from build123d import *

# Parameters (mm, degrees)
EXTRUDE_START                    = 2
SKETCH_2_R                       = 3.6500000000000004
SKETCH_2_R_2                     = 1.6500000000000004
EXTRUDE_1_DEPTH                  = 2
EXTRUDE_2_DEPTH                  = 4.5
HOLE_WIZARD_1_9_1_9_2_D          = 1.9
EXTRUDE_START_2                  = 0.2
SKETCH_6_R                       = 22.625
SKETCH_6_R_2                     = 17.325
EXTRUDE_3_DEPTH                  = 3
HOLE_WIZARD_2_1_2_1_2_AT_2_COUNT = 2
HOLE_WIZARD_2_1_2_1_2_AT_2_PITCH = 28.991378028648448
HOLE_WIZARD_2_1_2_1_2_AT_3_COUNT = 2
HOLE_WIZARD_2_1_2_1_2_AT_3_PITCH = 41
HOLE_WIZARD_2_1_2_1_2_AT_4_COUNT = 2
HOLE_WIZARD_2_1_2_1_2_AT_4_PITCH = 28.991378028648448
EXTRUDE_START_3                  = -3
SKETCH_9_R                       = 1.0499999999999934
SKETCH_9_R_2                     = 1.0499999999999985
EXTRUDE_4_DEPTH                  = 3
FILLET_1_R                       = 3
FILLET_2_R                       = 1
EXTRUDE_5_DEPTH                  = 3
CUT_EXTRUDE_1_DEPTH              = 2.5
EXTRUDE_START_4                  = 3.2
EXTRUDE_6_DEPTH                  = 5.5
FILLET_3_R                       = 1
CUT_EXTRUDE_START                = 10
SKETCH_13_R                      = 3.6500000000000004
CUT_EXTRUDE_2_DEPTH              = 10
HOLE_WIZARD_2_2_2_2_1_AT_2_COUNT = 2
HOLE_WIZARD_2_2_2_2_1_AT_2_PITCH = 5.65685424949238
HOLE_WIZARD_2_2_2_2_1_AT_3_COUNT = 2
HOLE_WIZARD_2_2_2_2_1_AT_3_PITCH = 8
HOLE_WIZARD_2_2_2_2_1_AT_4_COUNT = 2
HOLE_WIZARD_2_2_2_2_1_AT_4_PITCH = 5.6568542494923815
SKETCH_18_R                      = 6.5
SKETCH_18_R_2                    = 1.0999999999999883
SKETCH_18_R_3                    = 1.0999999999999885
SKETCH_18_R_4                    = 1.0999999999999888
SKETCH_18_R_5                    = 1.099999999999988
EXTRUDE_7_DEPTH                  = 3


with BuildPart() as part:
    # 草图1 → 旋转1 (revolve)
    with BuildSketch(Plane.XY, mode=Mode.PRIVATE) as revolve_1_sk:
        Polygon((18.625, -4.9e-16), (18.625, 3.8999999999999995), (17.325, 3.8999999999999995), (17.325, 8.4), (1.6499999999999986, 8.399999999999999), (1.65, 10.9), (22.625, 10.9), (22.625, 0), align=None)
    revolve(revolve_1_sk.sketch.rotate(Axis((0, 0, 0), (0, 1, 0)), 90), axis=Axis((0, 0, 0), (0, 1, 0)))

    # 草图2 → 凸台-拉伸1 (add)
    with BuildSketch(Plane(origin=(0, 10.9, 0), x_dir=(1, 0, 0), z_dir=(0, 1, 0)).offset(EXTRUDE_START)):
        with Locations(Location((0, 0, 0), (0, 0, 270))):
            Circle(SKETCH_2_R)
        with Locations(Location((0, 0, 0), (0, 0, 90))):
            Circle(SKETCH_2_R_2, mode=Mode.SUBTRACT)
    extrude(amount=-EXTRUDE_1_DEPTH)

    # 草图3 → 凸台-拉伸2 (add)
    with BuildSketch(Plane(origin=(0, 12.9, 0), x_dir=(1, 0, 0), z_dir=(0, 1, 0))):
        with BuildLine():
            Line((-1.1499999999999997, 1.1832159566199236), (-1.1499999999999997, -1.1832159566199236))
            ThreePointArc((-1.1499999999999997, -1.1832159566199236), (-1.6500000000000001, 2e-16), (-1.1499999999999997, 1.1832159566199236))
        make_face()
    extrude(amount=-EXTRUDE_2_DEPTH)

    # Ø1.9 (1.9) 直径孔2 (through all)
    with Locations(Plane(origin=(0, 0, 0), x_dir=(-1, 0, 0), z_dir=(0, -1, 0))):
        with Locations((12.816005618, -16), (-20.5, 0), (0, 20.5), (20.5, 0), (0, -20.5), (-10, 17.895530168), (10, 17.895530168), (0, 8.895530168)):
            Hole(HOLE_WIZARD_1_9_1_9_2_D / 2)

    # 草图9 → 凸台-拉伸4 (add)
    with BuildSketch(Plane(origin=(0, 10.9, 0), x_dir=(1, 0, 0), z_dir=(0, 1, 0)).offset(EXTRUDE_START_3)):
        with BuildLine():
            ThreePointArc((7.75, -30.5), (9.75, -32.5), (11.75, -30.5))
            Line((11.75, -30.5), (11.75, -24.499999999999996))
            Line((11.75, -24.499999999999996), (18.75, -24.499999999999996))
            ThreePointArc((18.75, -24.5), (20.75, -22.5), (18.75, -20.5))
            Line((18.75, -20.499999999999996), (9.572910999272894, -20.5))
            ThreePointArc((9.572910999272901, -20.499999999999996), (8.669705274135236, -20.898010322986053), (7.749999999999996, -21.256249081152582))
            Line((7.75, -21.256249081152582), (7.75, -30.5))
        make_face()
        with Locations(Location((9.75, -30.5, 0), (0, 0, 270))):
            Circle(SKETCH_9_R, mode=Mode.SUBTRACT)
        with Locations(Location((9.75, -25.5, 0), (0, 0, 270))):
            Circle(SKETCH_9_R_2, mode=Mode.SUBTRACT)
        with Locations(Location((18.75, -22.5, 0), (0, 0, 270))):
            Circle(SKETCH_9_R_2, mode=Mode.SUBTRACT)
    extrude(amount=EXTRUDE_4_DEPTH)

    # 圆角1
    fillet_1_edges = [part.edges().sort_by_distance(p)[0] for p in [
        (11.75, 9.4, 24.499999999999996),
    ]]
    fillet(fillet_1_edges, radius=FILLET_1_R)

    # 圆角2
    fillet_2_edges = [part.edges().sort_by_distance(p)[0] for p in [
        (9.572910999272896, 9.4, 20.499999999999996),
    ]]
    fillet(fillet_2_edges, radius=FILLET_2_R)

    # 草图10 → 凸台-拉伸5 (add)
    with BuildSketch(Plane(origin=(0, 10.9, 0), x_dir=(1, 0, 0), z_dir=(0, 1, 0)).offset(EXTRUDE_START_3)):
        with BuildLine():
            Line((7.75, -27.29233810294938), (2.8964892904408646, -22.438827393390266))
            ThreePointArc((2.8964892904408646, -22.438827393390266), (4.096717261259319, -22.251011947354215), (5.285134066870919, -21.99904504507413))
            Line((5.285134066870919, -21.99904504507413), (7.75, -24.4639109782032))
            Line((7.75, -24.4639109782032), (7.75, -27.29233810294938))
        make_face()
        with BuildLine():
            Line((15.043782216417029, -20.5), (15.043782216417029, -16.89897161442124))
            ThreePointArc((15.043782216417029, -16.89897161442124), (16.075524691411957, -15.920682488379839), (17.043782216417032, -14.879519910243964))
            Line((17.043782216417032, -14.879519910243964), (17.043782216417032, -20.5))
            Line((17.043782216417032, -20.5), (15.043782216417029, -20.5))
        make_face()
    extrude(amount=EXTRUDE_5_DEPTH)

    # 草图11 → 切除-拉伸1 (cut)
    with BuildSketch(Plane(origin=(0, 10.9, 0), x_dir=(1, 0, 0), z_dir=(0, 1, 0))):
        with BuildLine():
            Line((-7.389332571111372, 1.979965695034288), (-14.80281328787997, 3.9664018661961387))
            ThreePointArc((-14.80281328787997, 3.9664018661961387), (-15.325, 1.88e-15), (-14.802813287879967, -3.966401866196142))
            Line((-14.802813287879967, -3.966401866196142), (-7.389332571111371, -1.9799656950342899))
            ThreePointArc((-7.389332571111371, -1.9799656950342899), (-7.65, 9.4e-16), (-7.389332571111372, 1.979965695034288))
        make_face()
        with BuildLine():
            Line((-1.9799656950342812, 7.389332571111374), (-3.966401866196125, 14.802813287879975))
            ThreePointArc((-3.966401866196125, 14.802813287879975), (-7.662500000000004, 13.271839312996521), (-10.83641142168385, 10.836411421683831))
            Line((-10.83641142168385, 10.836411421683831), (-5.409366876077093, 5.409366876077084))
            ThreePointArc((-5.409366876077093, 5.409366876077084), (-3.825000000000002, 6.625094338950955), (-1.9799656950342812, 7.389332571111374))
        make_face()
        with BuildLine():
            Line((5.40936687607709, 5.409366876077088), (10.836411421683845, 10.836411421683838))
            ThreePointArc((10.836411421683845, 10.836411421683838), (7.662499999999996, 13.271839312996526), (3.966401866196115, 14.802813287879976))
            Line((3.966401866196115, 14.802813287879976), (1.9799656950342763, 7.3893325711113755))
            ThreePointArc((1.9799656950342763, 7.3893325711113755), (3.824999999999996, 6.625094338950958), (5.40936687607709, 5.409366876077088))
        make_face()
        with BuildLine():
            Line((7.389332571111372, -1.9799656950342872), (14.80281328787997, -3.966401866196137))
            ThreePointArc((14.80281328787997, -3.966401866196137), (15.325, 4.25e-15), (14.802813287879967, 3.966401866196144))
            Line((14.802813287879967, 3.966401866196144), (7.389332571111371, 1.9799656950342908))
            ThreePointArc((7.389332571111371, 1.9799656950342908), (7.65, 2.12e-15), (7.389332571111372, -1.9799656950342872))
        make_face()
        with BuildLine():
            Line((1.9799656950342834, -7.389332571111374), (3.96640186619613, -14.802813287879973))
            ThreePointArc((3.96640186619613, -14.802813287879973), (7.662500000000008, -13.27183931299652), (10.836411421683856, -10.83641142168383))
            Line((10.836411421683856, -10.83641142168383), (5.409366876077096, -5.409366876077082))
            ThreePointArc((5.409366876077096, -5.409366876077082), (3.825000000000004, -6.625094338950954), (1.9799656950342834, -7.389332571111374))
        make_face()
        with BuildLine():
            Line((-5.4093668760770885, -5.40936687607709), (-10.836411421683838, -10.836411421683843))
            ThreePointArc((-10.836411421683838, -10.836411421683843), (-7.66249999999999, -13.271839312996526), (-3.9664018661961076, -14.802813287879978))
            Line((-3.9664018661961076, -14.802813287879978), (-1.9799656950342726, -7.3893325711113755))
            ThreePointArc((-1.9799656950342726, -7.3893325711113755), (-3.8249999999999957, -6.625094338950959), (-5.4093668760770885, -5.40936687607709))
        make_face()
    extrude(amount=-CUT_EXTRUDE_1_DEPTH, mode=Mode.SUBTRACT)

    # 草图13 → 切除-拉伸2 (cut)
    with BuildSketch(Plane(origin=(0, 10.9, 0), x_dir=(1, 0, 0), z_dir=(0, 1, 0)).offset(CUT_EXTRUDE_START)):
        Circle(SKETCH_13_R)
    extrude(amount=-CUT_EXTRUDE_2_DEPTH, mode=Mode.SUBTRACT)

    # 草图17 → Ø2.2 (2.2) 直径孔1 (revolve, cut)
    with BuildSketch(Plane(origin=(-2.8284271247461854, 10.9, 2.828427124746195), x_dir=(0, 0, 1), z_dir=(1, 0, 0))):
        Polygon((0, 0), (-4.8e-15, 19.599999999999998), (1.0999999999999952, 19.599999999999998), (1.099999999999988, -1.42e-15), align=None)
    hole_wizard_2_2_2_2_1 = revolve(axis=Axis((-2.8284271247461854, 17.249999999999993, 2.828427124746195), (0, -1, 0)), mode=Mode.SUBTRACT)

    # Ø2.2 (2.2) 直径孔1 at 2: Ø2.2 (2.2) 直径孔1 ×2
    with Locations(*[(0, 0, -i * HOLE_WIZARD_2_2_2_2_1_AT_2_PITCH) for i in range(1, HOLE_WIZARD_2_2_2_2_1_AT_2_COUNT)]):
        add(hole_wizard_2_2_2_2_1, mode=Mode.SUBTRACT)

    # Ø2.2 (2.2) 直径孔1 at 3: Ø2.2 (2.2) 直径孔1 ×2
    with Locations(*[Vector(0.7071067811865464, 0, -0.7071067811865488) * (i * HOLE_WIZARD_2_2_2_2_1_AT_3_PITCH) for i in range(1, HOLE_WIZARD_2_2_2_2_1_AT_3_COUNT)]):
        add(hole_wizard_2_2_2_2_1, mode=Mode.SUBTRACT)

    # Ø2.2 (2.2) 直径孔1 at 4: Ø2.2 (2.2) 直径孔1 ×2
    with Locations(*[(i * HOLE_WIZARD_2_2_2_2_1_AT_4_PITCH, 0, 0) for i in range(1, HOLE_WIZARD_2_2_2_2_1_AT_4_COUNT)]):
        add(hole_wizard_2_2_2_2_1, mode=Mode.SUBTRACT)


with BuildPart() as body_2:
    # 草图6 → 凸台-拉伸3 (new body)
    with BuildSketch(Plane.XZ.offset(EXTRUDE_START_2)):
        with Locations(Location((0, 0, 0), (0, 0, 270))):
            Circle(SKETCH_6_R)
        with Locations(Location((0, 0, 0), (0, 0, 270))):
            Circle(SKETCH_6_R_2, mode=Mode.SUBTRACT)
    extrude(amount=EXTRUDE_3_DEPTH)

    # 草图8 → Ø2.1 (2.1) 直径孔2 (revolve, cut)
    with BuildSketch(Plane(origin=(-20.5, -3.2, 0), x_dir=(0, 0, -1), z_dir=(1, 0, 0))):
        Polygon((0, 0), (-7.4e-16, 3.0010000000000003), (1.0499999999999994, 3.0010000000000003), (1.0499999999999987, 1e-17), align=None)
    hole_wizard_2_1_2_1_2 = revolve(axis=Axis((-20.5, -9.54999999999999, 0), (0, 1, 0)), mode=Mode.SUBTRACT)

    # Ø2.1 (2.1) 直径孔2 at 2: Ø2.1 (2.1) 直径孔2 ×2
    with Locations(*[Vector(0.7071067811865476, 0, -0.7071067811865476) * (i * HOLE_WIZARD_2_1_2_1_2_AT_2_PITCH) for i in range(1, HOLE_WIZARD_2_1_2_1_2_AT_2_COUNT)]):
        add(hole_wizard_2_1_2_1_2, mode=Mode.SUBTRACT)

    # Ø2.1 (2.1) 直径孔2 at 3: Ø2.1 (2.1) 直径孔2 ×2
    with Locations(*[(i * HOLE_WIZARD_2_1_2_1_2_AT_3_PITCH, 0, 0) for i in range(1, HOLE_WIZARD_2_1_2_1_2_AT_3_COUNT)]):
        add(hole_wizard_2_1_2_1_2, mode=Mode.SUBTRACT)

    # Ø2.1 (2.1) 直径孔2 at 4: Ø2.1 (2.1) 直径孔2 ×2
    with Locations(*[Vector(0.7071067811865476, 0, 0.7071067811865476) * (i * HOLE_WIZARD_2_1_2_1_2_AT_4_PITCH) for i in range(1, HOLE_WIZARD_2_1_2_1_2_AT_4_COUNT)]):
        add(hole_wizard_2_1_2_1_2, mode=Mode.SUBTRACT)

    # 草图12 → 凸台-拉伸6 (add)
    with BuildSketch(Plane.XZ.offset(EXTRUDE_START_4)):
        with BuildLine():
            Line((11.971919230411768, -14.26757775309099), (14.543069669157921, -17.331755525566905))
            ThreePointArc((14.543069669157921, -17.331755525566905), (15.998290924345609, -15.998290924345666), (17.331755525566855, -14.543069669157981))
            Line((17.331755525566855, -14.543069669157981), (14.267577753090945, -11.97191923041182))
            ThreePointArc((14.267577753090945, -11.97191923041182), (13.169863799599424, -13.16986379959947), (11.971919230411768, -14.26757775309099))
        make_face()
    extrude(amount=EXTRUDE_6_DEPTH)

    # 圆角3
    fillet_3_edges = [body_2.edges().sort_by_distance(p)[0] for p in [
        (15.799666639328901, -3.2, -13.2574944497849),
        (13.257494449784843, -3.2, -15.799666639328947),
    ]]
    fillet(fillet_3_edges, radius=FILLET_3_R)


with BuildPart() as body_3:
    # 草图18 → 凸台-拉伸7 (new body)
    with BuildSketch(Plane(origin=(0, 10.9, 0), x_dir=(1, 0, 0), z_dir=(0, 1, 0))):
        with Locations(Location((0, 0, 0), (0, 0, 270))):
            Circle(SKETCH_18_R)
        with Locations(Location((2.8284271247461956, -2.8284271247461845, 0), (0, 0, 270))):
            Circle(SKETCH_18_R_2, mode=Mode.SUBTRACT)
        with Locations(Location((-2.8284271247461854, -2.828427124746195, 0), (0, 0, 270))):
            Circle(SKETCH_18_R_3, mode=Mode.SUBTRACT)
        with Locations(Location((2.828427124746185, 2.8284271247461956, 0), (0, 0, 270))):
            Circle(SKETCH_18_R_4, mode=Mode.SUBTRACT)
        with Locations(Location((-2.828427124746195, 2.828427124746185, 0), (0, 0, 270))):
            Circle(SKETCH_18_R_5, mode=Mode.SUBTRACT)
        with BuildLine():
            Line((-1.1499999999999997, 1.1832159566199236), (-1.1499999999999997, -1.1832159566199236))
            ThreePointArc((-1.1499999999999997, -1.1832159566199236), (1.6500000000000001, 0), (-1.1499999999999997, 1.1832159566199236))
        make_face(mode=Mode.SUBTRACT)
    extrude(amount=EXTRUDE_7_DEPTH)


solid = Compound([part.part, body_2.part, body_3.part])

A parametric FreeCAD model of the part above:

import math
import FreeCAD as App
import Part
import Sketcher
Q = App.Units.Quantity


def edges_at(feature, points):
    """Names of the edges that pass closest to the given points."""
    edges = feature.Shape.Edges
    near = lambda p: min(range(len(edges)), key=lambda i: edges[i].distToShape(Part.Vertex(*p))[0])
    return sorted({f"Edge{near(p) + 1}" for p in points})

doc = App.newDocument("Part")
body = doc.addObject("PartDesign::Body", "Body")

# Sketch on XY plane
sketch1 = body.newObject("Sketcher::SketchObject", "Sketch")
sketch1.AttachmentSupport = (doc.getObject("XY_Plane"), [""])
sketch1.MapMode = "FlatFace"
sketch1.addGeometry([
    Part.LineSegment(App.Vector(18.6, 3.9, 0), App.Vector(18.6, 0, 0)),  # 0
    Part.LineSegment(App.Vector(18.6, 0, 0), App.Vector(22.6, 0, 0)),  # 1
    Part.LineSegment(App.Vector(22.6, 0, 0), App.Vector(22.6, 10.9, 0)),  # 2
    Part.LineSegment(App.Vector(22.6, 10.9, 0), App.Vector(1.6, 10.9, 0)),  # 3
    Part.LineSegment(App.Vector(1.6, 10.9, 0), App.Vector(1.6, 8.4, 0)),  # 4
    Part.LineSegment(App.Vector(1.6, 8.4, 0), App.Vector(17.3, 8.4, 0)),  # 5
    Part.LineSegment(App.Vector(17.3, 8.4, 0), App.Vector(17.3, 3.9, 0)),  # 6
    Part.LineSegment(App.Vector(17.3, 3.9, 0), App.Vector(18.6, 3.9, 0)),  # 7
], False)
sketch1.addConstraint([
    Sketcher.Constraint("Coincident", 0, 2, 1, 1),
    Sketcher.Constraint("Coincident", 1, 2, 2, 1),
    Sketcher.Constraint("Coincident", 2, 2, 3, 1),
    Sketcher.Constraint("Coincident", 3, 2, 4, 1),
    Sketcher.Constraint("Coincident", 4, 2, 5, 1),
    Sketcher.Constraint("Coincident", 5, 2, 6, 1),
    Sketcher.Constraint("Coincident", 6, 2, 7, 1),
    Sketcher.Constraint("Coincident", 7, 2, 0, 1),
    Sketcher.Constraint("Vertical", 0),
    Sketcher.Constraint("Horizontal", 1),
    Sketcher.Constraint("Vertical", 2),
    Sketcher.Constraint("Horizontal", 3),
    Sketcher.Constraint("Vertical", 4),
    Sketcher.Constraint("Horizontal", 5),
    Sketcher.Constraint("Vertical", 6),
    Sketcher.Constraint("Horizontal", 7),
    Sketcher.Constraint("PointOnObject", 0, 2, -1),
    Sketcher.Constraint("DistanceX", 1, 1, 1, 2, Q("4 mm")),
    Sketcher.Constraint("DistanceX", 7, 1, 7, 2, Q("1.3 mm")),
    Sketcher.Constraint("DistanceY", 0, 2, 0, 1, Q("3.9 mm")),
    Sketcher.Constraint("DistanceY", 2, 1, 2, 2, Q("10.9 mm")),
    Sketcher.Constraint("DistanceY", 4, 2, 4, 1, Q("2.5 mm")),
    Sketcher.Constraint("DistanceX", 3, 2, 3, 1, Q("20.975 mm")),
    Sketcher.Constraint("DistanceX", -1, 1, 3, 2, Q("1.65 mm")),
])
revolution = body.newObject("PartDesign::Revolution", "Revolution")
revolution.Profile = sketch1
revolution.ReferenceAxis = (sketch1, ["V_Axis"])
revolution.Angle = 360

# Sketch on XZ plane
sketch2 = body.newObject("Sketcher::SketchObject", "Sketch001")
sketch2.AttachmentSupport = (doc.getObject("XZ_Plane"), [""])
sketch2.MapMode = "FlatFace"
sketch2.AttachmentOffset = App.Placement(App.Vector(0, 0, -12.9), App.Rotation())
sketch2.addGeometry([
    Part.Circle(App.Vector(0, 0, 0), App.Vector(0, 0, 1), 3.6),
    Part.Circle(App.Vector(0, 0, 0), App.Vector(0, 0, 1), 1.6),
], False)
sketch2.addConstraint([
    Sketcher.Constraint("Coincident", 0, 3, -1, 1),
    Sketcher.Constraint("Coincident", 1, 3, -1, 1),
    Sketcher.Constraint("Diameter", 0, Q("7.3 mm")),
    Sketcher.Constraint("Diameter", 1, Q("3.3 mm")),
])
pad1 = body.newObject("PartDesign::Pad", "Pad")
pad1.Profile = sketch2
pad1.Length = 2

# Sketch on XZ plane
sketch3 = body.newObject("Sketcher::SketchObject", "Sketch002")
sketch3.AttachmentSupport = (doc.getObject("XZ_Plane"), [""])
sketch3.MapMode = "FlatFace"
sketch3.AttachmentOffset = App.Placement(App.Vector(0, 0, -12.9), App.Rotation())
sketch3.addGeometry([
    Part.LineSegment(App.Vector(-1.1, 1.2, 0), App.Vector(-1.1, -1.2, 0)),
    Part.ArcOfCircle(Part.Circle(App.Vector(0, 0, 0), App.Vector(0, 0, 1), 1.6), math.radians(134), math.radians(226)),
], False)
sketch3.addConstraint([
    Sketcher.Constraint("Coincident", 0, 1, 1, 1),
    Sketcher.Constraint("Coincident", 1, 2, 0, 2),
    Sketcher.Constraint("Vertical", 0),
    Sketcher.Constraint("Coincident", 1, 3, -1, 1),
    Sketcher.Constraint("Radius", 1, Q("1.65 mm")),
    Sketcher.Constraint("DistanceX", 0, 1, -1, 1, Q("1.15 mm")),
])
pad2 = body.newObject("PartDesign::Pad", "Pad001")
pad2.Profile = sketch3
pad2.Length = 4.5

# Sketch on XZ plane
sketch4 = body.newObject("Sketcher::SketchObject", "Sketch003")
sketch4.AttachmentSupport = (doc.getObject("XZ_Plane"), [""])
sketch4.MapMode = "FlatFace"
sketch4.addGeometry([
    Part.Circle(App.Vector(-12.8, 16, 0), App.Vector(0, 0, 1), 0.9),  # 0
    Part.Circle(App.Vector(20.5, 0, 0), App.Vector(0, 0, 1), 0.9),  # 1
    Part.Circle(App.Vector(0, -20.5, 0), App.Vector(0, 0, 1), 0.9),  # 2
    Part.Circle(App.Vector(-20.5, 0, 0), App.Vector(0, 0, 1), 0.9),  # 3
    Part.Circle(App.Vector(0, 20.5, 0), App.Vector(0, 0, 1), 0.9),  # 4
    Part.Circle(App.Vector(10, -17.9, 0), App.Vector(0, 0, 1), 0.9),  # 5
    Part.Circle(App.Vector(-10, -17.9, 0), App.Vector(0, 0, 1), 0.9),  # 6
    Part.Circle(App.Vector(0, -8.9, 0), App.Vector(0, 0, 1), 0.9),  # 7
], False)
sketch4.addConstraint([
    Sketcher.Constraint("Equal", 0, 1),
    Sketcher.Constraint("Equal", 1, 2),
    Sketcher.Constraint("Equal", 2, 3),
    Sketcher.Constraint("Equal", 3, 4),
    Sketcher.Constraint("Equal", 4, 5),
    Sketcher.Constraint("Equal", 5, 6),
    Sketcher.Constraint("Equal", 6, 7),
    Sketcher.Constraint("Symmetric", 1, 3, 3, 3, -1, 1),
    Sketcher.Constraint("Symmetric", 2, 3, 4, 3, -1, 1),
    Sketcher.Constraint("Symmetric", 5, 3, 6, 3, -2),
    Sketcher.Constraint("PointOnObject", 1, 3, -1),
    Sketcher.Constraint("PointOnObject", 2, 3, -2),
    Sketcher.Constraint("PointOnObject", 7, 3, -2),
    Sketcher.Constraint("Diameter", 0, Q("1.9 mm")),
    Sketcher.Constraint("DistanceY", -1, 1, 0, 3, Q("16 mm")),
    Sketcher.Constraint("DistanceX", -1, 1, 5, 3, Q("10 mm")),
    Sketcher.Constraint("DistanceX", 3, 3, 1, 3, Q("41 mm")),
    Sketcher.Constraint("DistanceY", 2, 3, 4, 3, Q("41 mm")),
    Sketcher.Constraint("DistanceY", 5, 3, 7, 3, Q("9 mm")),
    Sketcher.Constraint("DistanceY", 5, 3, -1, 1, Q("17.89553 mm")),
    Sketcher.Constraint("DistanceX", 0, 3, -1, 1, Q("12.816006 mm")),
])
doc.recompute()
hole = body.newObject("PartDesign::Hole", "Hole")
hole.Profile = sketch4
hole.ThreadType = "None"
hole.Diameter = 1.9
hole.DepthType = "ThroughAll"

# Sketch on XZ plane
sketch5 = body.newObject("Sketcher::SketchObject", "Sketch004")
sketch5.AttachmentSupport = (doc.getObject("XZ_Plane"), [""])
sketch5.MapMode = "FlatFace"
sketch5.AttachmentOffset = App.Placement(App.Vector(0, 0, -7.9), App.Rotation())
sketch5.addGeometry([
    Part.ArcOfCircle(Part.Circle(App.Vector(9.8, 30.5, 0), App.Vector(0, 0, 1), 2), math.radians(0), math.radians(180)),  # 0
    Part.LineSegment(App.Vector(11.8, 30.5, 0), App.Vector(11.8, 24.5, 0)),  # 1
    Part.LineSegment(App.Vector(11.8, 24.5, 0), App.Vector(18.8, 24.5, 0)),  # 2
    Part.ArcOfCircle(Part.Circle(App.Vector(18.8, 22.5, 0), App.Vector(0, 0, 1), 2), math.radians(-90), math.radians(90)),  # 3
    Part.LineSegment(App.Vector(18.8, 20.5, 0), App.Vector(9.6, 20.5, 0)),  # 4
    Part.ArcOfCircle(Part.Circle(App.Vector(0, 0, 0), App.Vector(0, 0, 1), 22.6), math.radians(64.97), math.radians(69.97)),  # 5
    Part.LineSegment(App.Vector(7.8, 21.3, 0), App.Vector(7.8, 30.5, 0)),  # 6
    Part.Circle(App.Vector(9.8, 30.5, 0), App.Vector(0, 0, 1), 1.1),  # 7
    Part.Circle(App.Vector(9.8, 25.5, 0), App.Vector(0, 0, 1), 1.1),  # 8
    Part.Circle(App.Vector(18.8, 22.5, 0), App.Vector(0, 0, 1), 1.1),  # 9
], False)
sketch5.addConstraint([
    Sketcher.Constraint("Tangent", 0, 1, 1, 1),
    Sketcher.Constraint("Coincident", 1, 2, 2, 1),
    Sketcher.Constraint("Tangent", 2, 2, 3, 2),
    Sketcher.Constraint("Tangent", 3, 1, 4, 1),
    Sketcher.Constraint("Coincident", 4, 2, 5, 1),
    Sketcher.Constraint("Coincident", 5, 2, 6, 1),
    Sketcher.Constraint("Tangent", 6, 2, 0, 2),
    Sketcher.Constraint("Vertical", 1),
    Sketcher.Constraint("Horizontal", 2),
    Sketcher.Constraint("Horizontal", 4),
    Sketcher.Constraint("Vertical", 6),
    Sketcher.Constraint("Coincident", 5, 3, -1, 1),
    Sketcher.Constraint("Coincident", 7, 3, 0, 3),
    Sketcher.Constraint("Coincident", 9, 3, 3, 3),
    Sketcher.Constraint("Equal", 0, 3),
    Sketcher.Constraint("Equal", 7, 8),
    Sketcher.Constraint("Equal", 8, 9),
    Sketcher.Constraint("Vertical", 7, 3, 8, 3),
    Sketcher.Constraint("Radius", 0, Q("2 mm")),
    Sketcher.Constraint("Diameter", 7, Q("2.1 mm")),
    Sketcher.Constraint("DistanceX", 2, 1, 2, 2, Q("7 mm")),
    Sketcher.Constraint("DistanceY", 1, 2, 1, 1, Q("6 mm")),
    Sketcher.Constraint("Radius", 5, Q("22.625 mm")),
    Sketcher.Constraint("DistanceY", 8, 3, 0, 3, Q("5 mm")),
    Sketcher.Constraint("DistanceY", -1, 1, 0, 3, Q("30.5 mm")),
    Sketcher.Constraint("DistanceX", -1, 1, 0, 3, Q("9.75 mm")),
])
pad3 = body.newObject("PartDesign::Pad", "Pad002")
pad3.Profile = sketch5
pad3.Length = 3
pad3.Reversed = True
doc.recompute()

fillet = body.newObject("PartDesign::Fillet", "Fillet")
fillet.Base = (pad3, edges_at(pad3, [(11.75, 9.4, 24.5)]))
fillet.Radius = 3
doc.recompute()

fillet2 = body.newObject("PartDesign::Fillet", "Fillet001")
fillet2.Base = (fillet, edges_at(fillet, [(9.573, 9.4, 20.5)]))
fillet2.Radius = 1

# Sketch on XZ plane
sketch6 = body.newObject("Sketcher::SketchObject", "Sketch005")
sketch6.AttachmentSupport = (doc.getObject("XZ_Plane"), [""])
sketch6.MapMode = "FlatFace"
sketch6.AttachmentOffset = App.Placement(App.Vector(0, 0, -7.9), App.Rotation())
sketch6.addGeometry([
    Part.LineSegment(App.Vector(2.9, 22.4, 0), App.Vector(7.8, 27.3, 0)),  # 0
    Part.LineSegment(App.Vector(7.8, 27.3, 0), App.Vector(7.8, 24.5, 0)),  # 1
    Part.LineSegment(App.Vector(7.8, 24.5, 0), App.Vector(5.3, 22, 0)),  # 2
    Part.ArcOfCircle(Part.Circle(App.Vector(0, 0, 0), App.Vector(0, 0, 1), 22.6), math.radians(76.49), math.radians(82.64)),  # 3
    Part.LineSegment(App.Vector(15, 16.9, 0), App.Vector(15, 20.5, 0)),  # 4
    Part.LineSegment(App.Vector(15, 20.5, 0), App.Vector(17, 20.5, 0)),  # 5
    Part.LineSegment(App.Vector(17, 20.5, 0), App.Vector(17, 14.9, 0)),  # 6
    Part.ArcOfCircle(Part.Circle(App.Vector(0, 0, 0), App.Vector(0, 0, 1), 22.6), math.radians(41.12), math.radians(48.32)),  # 7
], False)
sketch6.addConstraint([
    Sketcher.Constraint("Coincident", 0, 2, 1, 1),
    Sketcher.Constraint("Coincident", 1, 2, 2, 1),
    Sketcher.Constraint("Coincident", 2, 2, 3, 1),
    Sketcher.Constraint("Coincident", 3, 2, 0, 1),
    Sketcher.Constraint("Coincident", 4, 2, 5, 1),
    Sketcher.Constraint("Coincident", 5, 2, 6, 1),
    Sketcher.Constraint("Coincident", 6, 2, 7, 1),
    Sketcher.Constraint("Coincident", 7, 2, 4, 1),
    Sketcher.Constraint("Vertical", 1),
    Sketcher.Constraint("Vertical", 4),
    Sketcher.Constraint("Horizontal", 5),
    Sketcher.Constraint("Vertical", 6),
    Sketcher.Constraint("Coincident", 3, 3, -1, 1),
    Sketcher.Constraint("Coincident", 7, 3, -1, 1),
    Sketcher.Constraint("Equal", 3, 7),
    Sketcher.Constraint("Parallel", 0, 2),
    Sketcher.Constraint("DistanceX", 5, 1, 5, 2, Q("2 mm")),
    Sketcher.Constraint("Angle", 0, Q("45 deg")),
    Sketcher.Constraint("Radius", 3, Q("22.625 mm")),
    Sketcher.Constraint("DistanceY", -1, 1, 4, 2, Q("20.5 mm")),
    Sketcher.Constraint("DistanceX", -1, 1, 0, 2, Q("7.75 mm")),
    Sketcher.Constraint("Distance", 0, Q("6.863901 mm")),
    Sketcher.Constraint("DistanceY", 4, 1, 4, 2, Q("3.601028 mm")),
    Sketcher.Constraint("DistanceY", 1, 2, 1, 1, Q("2.828427 mm")),
])
pad4 = body.newObject("PartDesign::Pad", "Pad003")
pad4.Profile = sketch6
pad4.Length = 3
pad4.Reversed = True

# Sketch on XZ plane
sketch7 = body.newObject("Sketcher::SketchObject", "Sketch006")
sketch7.AttachmentSupport = (doc.getObject("XZ_Plane"), [""])
sketch7.MapMode = "FlatFace"
sketch7.AttachmentOffset = App.Placement(App.Vector(0, 0, -10.9), App.Rotation())
sketch7.addGeometry([
    Part.LineSegment(App.Vector(-7.4, -2, 0), App.Vector(-14.8, -4, 0)),  # 0
    Part.ArcOfCircle(Part.Circle(App.Vector(0, 0, 0), App.Vector(0, 0, 1), 15.3), math.radians(165), math.radians(195)),  # 1
    Part.LineSegment(App.Vector(-14.8, 4, 0), App.Vector(-7.4, 2, 0)),  # 2
    Part.ArcOfCircle(Part.Circle(App.Vector(0, 0, 0), App.Vector(0, 0, 1), 7.7), math.radians(165), math.radians(195)),  # 3
    Part.LineSegment(App.Vector(-2, -7.4, 0), App.Vector(-4, -14.8, 0)),  # 4
    Part.ArcOfCircle(Part.Circle(App.Vector(0, 0, 0), App.Vector(0, 0, 1), 15.3), math.radians(-135), math.radians(-105)),  # 5
    Part.LineSegment(App.Vector(-10.8, -10.8, 0), App.Vector(-5.4, -5.4, 0)),  # 6
    Part.ArcOfCircle(Part.Circle(App.Vector(0, 0, 0), App.Vector(0, 0, 1), 7.7), math.radians(-135), math.radians(-105)),  # 7
    Part.LineSegment(App.Vector(5.4, -5.4, 0), App.Vector(10.8, -10.8, 0)),  # 8
    Part.ArcOfCircle(Part.Circle(App.Vector(0, 0, 0), App.Vector(0, 0, 1), 15.3), math.radians(-75), math.radians(-45)),  # 9
    Part.LineSegment(App.Vector(4, -14.8, 0), App.Vector(2, -7.4, 0)),  # 10
    Part.ArcOfCircle(Part.Circle(App.Vector(0, 0, 0), App.Vector(0, 0, 1), 7.7), math.radians(-75), math.radians(-45)),  # 11
    Part.LineSegment(App.Vector(7.4, 2, 0), App.Vector(14.8, 4, 0)),  # 12
    Part.ArcOfCircle(Part.Circle(App.Vector(0, 0, 0), App.Vector(0, 0, 1), 15.3), math.radians(-15), math.radians(15)),  # 13
    Part.LineSegment(App.Vector(14.8, -4, 0), App.Vector(7.4, -2, 0)),  # 14
    Part.ArcOfCircle(Part.Circle(App.Vector(0, 0, 0), App.Vector(0, 0, 1), 7.7), math.radians(-15), math.radians(15)),  # 15
    Part.LineSegment(App.Vector(2, 7.4, 0), App.Vector(4, 14.8, 0)),  # 16
    Part.ArcOfCircle(Part.Circle(App.Vector(0, 0, 0), App.Vector(0, 0, 1), 15.3), math.radians(45), math.radians(75)),  # 17
    Part.LineSegment(App.Vector(10.8, 10.8, 0), App.Vector(5.4, 5.4, 0)),  # 18
    Part.ArcOfCircle(Part.Circle(App.Vector(0, 0, 0), App.Vector(0, 0, 1), 7.7), math.radians(45), math.radians(75)),  # 19
    Part.LineSegment(App.Vector(-5.4, 5.4, 0), App.Vector(-10.8, 10.8, 0)),  # 20
    Part.ArcOfCircle(Part.Circle(App.Vector(0, 0, 0), App.Vector(0, 0, 1), 15.3), math.radians(105), math.radians(135)),  # 21
    Part.LineSegment(App.Vector(-4, 14.8, 0), App.Vector(-2, 7.4, 0)),  # 22
    Part.ArcOfCircle(Part.Circle(App.Vector(0, 0, 0), App.Vector(0, 0, 1), 7.7), math.radians(105), math.radians(135)),  # 23
], False)
sketch7.addConstraint([
    Sketcher.Constraint("Coincident", 0, 2, 1, 2),
    Sketcher.Constraint("Coincident", 1, 1, 2, 1),
    Sketcher.Constraint("Coincident", 2, 2, 3, 1),
    Sketcher.Constraint("Coincident", 3, 2, 0, 1),
    Sketcher.Constraint("Coincident", 4, 2, 5, 2),
    Sketcher.Constraint("Coincident", 5, 1, 6, 1),
    Sketcher.Constraint("Coincident", 6, 2, 7, 1),
    Sketcher.Constraint("Coincident", 7, 2, 4, 1),
    Sketcher.Constraint("Coincident", 8, 2, 9, 2),
    Sketcher.Constraint("Coincident", 9, 1, 10, 1),
    Sketcher.Constraint("Coincident", 10, 2, 11, 1),
    Sketcher.Constraint("Coincident", 11, 2, 8, 1),
    Sketcher.Constraint("Coincident", 12, 2, 13, 2),
    Sketcher.Constraint("Coincident", 13, 1, 14, 1),
    Sketcher.Constraint("Coincident", 14, 2, 15, 1),
    Sketcher.Constraint("Coincident", 15, 2, 12, 1),
    Sketcher.Constraint("Coincident", 16, 2, 17, 2),
    Sketcher.Constraint("Coincident", 17, 1, 18, 1),
    Sketcher.Constraint("Coincident", 18, 2, 19, 1),
    Sketcher.Constraint("Coincident", 19, 2, 16, 1),
    Sketcher.Constraint("Coincident", 20, 2, 21, 2),
    Sketcher.Constraint("Coincident", 21, 1, 22, 1),
    Sketcher.Constraint("Coincident", 22, 2, 23, 1),
    Sketcher.Constraint("Coincident", 23, 2, 20, 1),
    Sketcher.Constraint("Coincident", 1, 3, -1, 1),
    Sketcher.Constraint("Coincident", 3, 3, -1, 1),
    Sketcher.Constraint("Coincident", 5, 3, -1, 1),
    Sketcher.Constraint("Coincident", 7, 3, -1, 1),
    Sketcher.Constraint("Coincident", 9, 3, -1, 1),
    Sketcher.Constraint("Coincident", 11, 3, -1, 1),
    Sketcher.Constraint("Coincident", 13, 3, -1, 1),
    Sketcher.Constraint("Coincident", 15, 3, -1, 1),
    Sketcher.Constraint("Coincident", 17, 3, -1, 1),
    Sketcher.Constraint("Coincident", 19, 3, -1, 1),
    Sketcher.Constraint("Coincident", 21, 3, -1, 1),
    Sketcher.Constraint("Coincident", 23, 3, -1, 1),
    Sketcher.Constraint("Equal", 1, 5),
    Sketcher.Constraint("Equal", 3, 7),
    Sketcher.Constraint("Equal", 5, 9),
    Sketcher.Constraint("Equal", 7, 11),
    Sketcher.Constraint("Equal", 9, 13),
    Sketcher.Constraint("Equal", 11, 15),
    Sketcher.Constraint("Equal", 13, 17),
    Sketcher.Constraint("Equal", 15, 19),
    Sketcher.Constraint("Equal", 17, 21),
    Sketcher.Constraint("Equal", 19, 23),
    Sketcher.Constraint("Perpendicular", 2, 4),
    Sketcher.Constraint("Perpendicular", 6, 8),
    Sketcher.Constraint("Perpendicular", 0, 10),
    Sketcher.Constraint("Perpendicular", 10, 12),
    Sketcher.Constraint("Perpendicular", 4, 14),
    Sketcher.Constraint("Perpendicular", 14, 16),
    Sketcher.Constraint("Perpendicular", 8, 18),
    Sketcher.Constraint("Perpendicular", 18, 20),
    Sketcher.Constraint("Perpendicular", 12, 22),
    Sketcher.Constraint("Horizontal", 5, 1, 8, 2),
    Sketcher.Constraint("Horizontal", 4, 2, 9, 1),
    Sketcher.Constraint("Horizontal", 7, 2, 10, 2),
    Sketcher.Constraint("Horizontal", 6, 2, 11, 2),
    Sketcher.Constraint("Horizontal", 1, 1, 12, 2),
    Sketcher.Constraint("Horizontal", 0, 2, 13, 1),
    Sketcher.Constraint("Horizontal", 17, 1, 20, 2),
    Sketcher.Constraint("Horizontal", 16, 2, 21, 1),
    Sketcher.Constraint("Vertical", 0, 2, 1, 1),
    Sketcher.Constraint("Vertical", 9, 1, 16, 2),
    Sketcher.Constraint("Vertical", 8, 2, 17, 1),
    Sketcher.Constraint("Angle", 0, Q("-165 deg")),
    Sketcher.Constraint("Radius", 3, Q("7.65 mm")),
    Sketcher.Constraint("Radius", 1, Q("15.325 mm")),
    Sketcher.Constraint("DistanceY", 0, 2, -1, 1, Q("3.966402 mm")),
    Sketcher.Constraint("DistanceX", 4, 2, -1, 1, Q("3.966402 mm")),
    Sketcher.Constraint("DistanceY", 4, 2, 5, 1, Q("3.966402 mm")),
])
pocket1 = body.newObject("PartDesign::Pocket", "Pocket")
pocket1.Profile = sketch7
pocket1.Length = 2.5
pocket1.Reversed = True

# Sketch on XZ plane
sketch8 = body.newObject("Sketcher::SketchObject", "Sketch007")
sketch8.AttachmentSupport = (doc.getObject("XZ_Plane"), [""])
sketch8.MapMode = "FlatFace"
sketch8.AttachmentOffset = App.Placement(App.Vector(0, 0, -20.9), App.Rotation())
sketch8.addGeometry(Part.Circle(App.Vector(0, 0, 0), App.Vector(0, 0, 1), 3.6), False)
sketch8.addConstraint([
    Sketcher.Constraint("Coincident", 0, 3, -1, 1),
    Sketcher.Constraint("Diameter", 0, Q("7.3 mm")),
])
pocket2 = body.newObject("PartDesign::Pocket", "Pocket001")
pocket2.Profile = sketch8
pocket2.Length = 10
pocket2.Reversed = True

# Sketch on YZ plane
sketch9 = body.newObject("Sketcher::SketchObject", "Sketch008")
sketch9.AttachmentSupport = (doc.getObject("YZ_Plane"), [""])
sketch9.MapMode = "FlatFace"
sketch9.AttachmentOffset = App.Placement(App.Vector(0, 0, -2.828427), App.Rotation())
sketch9.addGeometry([
    Part.LineSegment(App.Vector(-8.7, 2.8, 0), App.Vector(10.9, 2.8, 0)),
    Part.LineSegment(App.Vector(10.9, 2.8, 0), App.Vector(10.9, 3.9, 0)),
    Part.LineSegment(App.Vector(10.9, 3.9, 0), App.Vector(-8.7, 3.9, 0)),
    Part.LineSegment(App.Vector(-8.7, 3.9, 0), App.Vector(-8.7, 2.8, 0)),
], False)
sketch9.addGeometry(Part.LineSegment(App.Vector(10.9, 2.8, 0), App.Vector(-8.7, 2.8, 0)), True)  # axis
sketch9.addConstraint([
    Sketcher.Constraint("Coincident", 0, 2, 1, 1),
    Sketcher.Constraint("Coincident", 1, 2, 2, 1),
    Sketcher.Constraint("Coincident", 2, 2, 3, 1),
    Sketcher.Constraint("Coincident", 3, 2, 0, 1),
    Sketcher.Constraint("Horizontal", 0),
    Sketcher.Constraint("Vertical", 1),
    Sketcher.Constraint("Horizontal", 2),
    Sketcher.Constraint("Vertical", 3),
    Sketcher.Constraint("Horizontal", 4),
    Sketcher.Constraint("Coincident", 4, 1, 0, 2),
    Sketcher.Constraint("Vertical", 2, 2, 4, 2),
    Sketcher.Constraint("DistanceX", 0, 1, 0, 2, Q("19.6 mm")),
    Sketcher.Constraint("DistanceY", 1, 1, 1, 2, Q("1.1 mm")),
    Sketcher.Constraint("DistanceX", -1, 1, 0, 2, Q("10.9 mm")),
    Sketcher.Constraint("DistanceY", -1, 1, 0, 2, Q("2.828427 mm")),
])
groove = body.newObject("PartDesign::Groove", "Groove")
groove.Profile = sketch9
groove.ReferenceAxis = (sketch9, ["Axis0"])
groove.Angle = 360
doc.recompute()

linearpattern = body.newObject("PartDesign::LinearPattern", "LinearPattern")
linearpattern.Originals = [groove]
linearpattern.Direction = (doc.getObject("Z_Axis"), [""])
linearpattern.Mode = "offset"
linearpattern.Offset = 5.656854
linearpattern.Occurrences = 2
linearpattern.Reversed = True
body.Tip = linearpattern
doc.recompute()

datumline = body.newObject("PartDesign::Line", "DatumLine")
datumline.Placement = App.Placement(App.Vector(0, 0, 0), App.Rotation(App.Vector(0, 0, 1), App.Vector(0.707106781, 0, -0.707106781)))
linearpattern2 = body.newObject("PartDesign::LinearPattern", "LinearPattern001")
linearpattern2.Originals = [groove]
linearpattern2.Direction = (datumline, [""])
linearpattern2.Mode = "offset"
linearpattern2.Offset = 8
linearpattern2.Occurrences = 2
body.Tip = linearpattern2
doc.recompute()

linearpattern3 = body.newObject("PartDesign::LinearPattern", "LinearPattern002")
linearpattern3.Originals = [groove]
linearpattern3.Direction = (doc.getObject("X_Axis"), [""])
linearpattern3.Mode = "offset"
linearpattern3.Offset = 5.656854
linearpattern3.Occurrences = 2
body.Tip = linearpattern3
body2 = doc.addObject("PartDesign::Body", "Body001")

# Sketch on XZ plane
sketch10 = body2.newObject("Sketcher::SketchObject", "Sketch009")
sketch10.AttachmentSupport = (doc.getObject("XZ_Plane001"), [""])
sketch10.MapMode = "FlatFace"
sketch10.AttachmentOffset = App.Placement(App.Vector(0, 0, 0.2), App.Rotation())
sketch10.addGeometry([
    Part.Circle(App.Vector(0, 0, 0), App.Vector(0, 0, 1), 23),
    Part.Circle(App.Vector(0, 0, 0), App.Vector(0, 0, 1), 17),
], False)
sketch10.addConstraint([
    Sketcher.Constraint("Coincident", 0, 3, -1, 1),
    Sketcher.Constraint("Coincident", 1, 3, -1, 1),
    Sketcher.Constraint("Diameter", 0, Q("45.25 mm")),
    Sketcher.Constraint("Diameter", 1, Q("34.65 mm")),
])
pad5 = body2.newObject("PartDesign::Pad", "Pad004")
pad5.Profile = sketch10
pad5.Length = 3

# Sketch on YZ plane
sketch11 = body2.newObject("Sketcher::SketchObject", "Sketch010")
sketch11.AttachmentSupport = (doc.getObject("YZ_Plane001"), [""])
sketch11.MapMode = "FlatFace"
sketch11.AttachmentOffset = App.Placement(App.Vector(0, 0, -20.5), App.Rotation())
sketch11.addGeometry([
    Part.LineSegment(App.Vector(-0.2, 0, 0), App.Vector(-3.2, 0, 0)),
    Part.LineSegment(App.Vector(-3.2, 0, 0), App.Vector(-3.2, -1.1, 0)),
    Part.LineSegment(App.Vector(-3.2, -1.1, 0), App.Vector(-0.2, -1.1, 0)),
    Part.LineSegment(App.Vector(-0.2, -1.1, 0), App.Vector(-0.2, 0, 0)),
], False)
sketch11.addConstraint([
    Sketcher.Constraint("Coincident", 0, 2, 1, 1),
    Sketcher.Constraint("Coincident", 1, 2, 2, 1),
    Sketcher.Constraint("Coincident", 2, 2, 3, 1),
    Sketcher.Constraint("Coincident", 3, 2, 0, 1),
    Sketcher.Constraint("Horizontal", 0),
    Sketcher.Constraint("Vertical", 1),
    Sketcher.Constraint("Horizontal", 2),
    Sketcher.Constraint("Vertical", 3),
    Sketcher.Constraint("PointOnObject", 0, 2, -1),
    Sketcher.Constraint("DistanceY", 1, 2, 1, 1, Q("1.05 mm")),
    Sketcher.Constraint("DistanceX", 0, 2, -1, 1, Q("3.2 mm")),
    Sketcher.Constraint("DistanceX", 0, 2, 0, 1, Q("3.001 mm")),
])
groove2 = body2.newObject("PartDesign::Groove", "Groove001")
groove2.Profile = sketch11
groove2.ReferenceAxis = (sketch11, ["H_Axis"])
groove2.Angle = 360
doc.recompute()

datumline2 = body2.newObject("PartDesign::Line", "DatumLine001")
datumline2.Placement = App.Placement(App.Vector(0, 0, 0), App.Rotation(App.Vector(0, 0, 1), App.Vector(0.707106781, 0, -0.707106781)))
linearpattern4 = body2.newObject("PartDesign::LinearPattern", "LinearPattern003")
linearpattern4.Originals = [groove2]
linearpattern4.Direction = (datumline2, [""])
linearpattern4.Mode = "offset"
linearpattern4.Offset = 28.991378
linearpattern4.Occurrences = 2
body2.Tip = linearpattern4
doc.recompute()

linearpattern5 = body2.newObject("PartDesign::LinearPattern", "LinearPattern004")
linearpattern5.Originals = [groove2]
linearpattern5.Direction = (doc.getObject("X_Axis001"), [""])
linearpattern5.Mode = "offset"
linearpattern5.Offset = 41
linearpattern5.Occurrences = 2
body2.Tip = linearpattern5
doc.recompute()

datumline3 = body2.newObject("PartDesign::Line", "DatumLine002")
datumline3.Placement = App.Placement(App.Vector(0, 0, 0), App.Rotation(App.Vector(0, 0, 1), App.Vector(0.707106781, 0, 0.707106781)))
linearpattern6 = body2.newObject("PartDesign::LinearPattern", "LinearPattern005")
linearpattern6.Originals = [groove2]
linearpattern6.Direction = (datumline3, [""])
linearpattern6.Mode = "offset"
linearpattern6.Offset = 28.991378
linearpattern6.Occurrences = 2
body2.Tip = linearpattern6

# Sketch on XZ plane
sketch12 = body2.newObject("Sketcher::SketchObject", "Sketch011")
sketch12.AttachmentSupport = (doc.getObject("XZ_Plane001"), [""])
sketch12.MapMode = "FlatFace"
sketch12.AttachmentOffset = App.Placement(App.Vector(0, 0, 3.2), App.Rotation())
sketch12.addGeometry([
    Part.LineSegment(App.Vector(12, -14.3, 0), App.Vector(14.5, -17.3, 0)),
    Part.ArcOfCircle(Part.Circle(App.Vector(0, 0, 0), App.Vector(0, 0, 1), 22.6), math.radians(-50), math.radians(-40)),
    Part.LineSegment(App.Vector(17.3, -14.5, 0), App.Vector(14.3, -12, 0)),
    Part.ArcOfCircle(Part.Circle(App.Vector(0, 0, 0), App.Vector(0, 0, 1), 18.6), math.radians(-50), math.radians(-40)),
], False)
sketch12.addConstraint([
    Sketcher.Constraint("Coincident", 0, 2, 1, 1),
    Sketcher.Constraint("Coincident", 1, 2, 2, 1),
    Sketcher.Constraint("Coincident", 2, 2, 3, 2),
    Sketcher.Constraint("Coincident", 3, 1, 0, 1),
    Sketcher.Constraint("Coincident", 1, 3, -1, 1),
    Sketcher.Constraint("Coincident", 3, 3, -1, 1),
    Sketcher.Constraint("Angle", 0, Q("-50 deg")),
    Sketcher.Constraint("Angle", 2, Q("140 deg")),
    Sketcher.Constraint("Distance", 0, Q("4 mm")),
    Sketcher.Constraint("Radius", 1, Q("22.625 mm")),
    Sketcher.Constraint("DistanceX", -1, 1, 0, 2, Q("14.54307 mm")),
    Sketcher.Constraint("DistanceY", 1, 2, -1, 1, Q("14.54307 mm")),
])
pad6 = body2.newObject("PartDesign::Pad", "Pad005")
pad6.Profile = sketch12
pad6.Length = 5.5
doc.recompute()

fillet3 = body2.newObject("PartDesign::Fillet", "Fillet002")
fillet3.Base = (pad6, edges_at(pad6, [(15.8, -3.2, -13.257), (13.257, -3.2, -15.8)]))
fillet3.Radius = 1
body3 = doc.addObject("PartDesign::Body", "Body002")

# Sketch on XZ plane
sketch13 = body3.newObject("Sketcher::SketchObject", "Sketch012")
sketch13.AttachmentSupport = (doc.getObject("XZ_Plane002"), [""])
sketch13.MapMode = "FlatFace"
sketch13.AttachmentOffset = App.Placement(App.Vector(0, 0, -10.9), App.Rotation())
sketch13.addGeometry([
    Part.Circle(App.Vector(0, 0, 0), App.Vector(0, 0, 1), 6.5),  # 0
    Part.Circle(App.Vector(-2.8, -2.8, 0), App.Vector(0, 0, 1), 1.1),  # 1
    Part.Circle(App.Vector(-2.8, 2.8, 0), App.Vector(0, 0, 1), 1.1),  # 2
    Part.Circle(App.Vector(2.8, -2.8, 0), App.Vector(0, 0, 1), 1.1),  # 3
    Part.LineSegment(App.Vector(-1.1, 1.2, 0), App.Vector(-1.1, -1.2, 0)),  # 4
    Part.ArcOfCircle(Part.Circle(App.Vector(0, 0, 0), App.Vector(0, 0, 1), 1.6), math.radians(-134), math.radians(134)),  # 5
    Part.Circle(App.Vector(2.8, 2.8, 0), App.Vector(0, 0, 1), 1.1),  # 6
], False)
sketch13.addConstraint([
    Sketcher.Constraint("Coincident", 4, 1, 5, 2),
    Sketcher.Constraint("Coincident", 5, 1, 4, 2),
    Sketcher.Constraint("Vertical", 4),
    Sketcher.Constraint("Coincident", 0, 3, -1, 1),
    Sketcher.Constraint("Coincident", 5, 3, -1, 1),
    Sketcher.Constraint("Equal", 1, 2),
    Sketcher.Constraint("Equal", 2, 3),
    Sketcher.Constraint("Equal", 3, 6),
    Sketcher.Constraint("Symmetric", 2, 3, 3, 3, -1, 1),
    Sketcher.Constraint("Symmetric", 1, 3, 6, 3, -1, 1),
    Sketcher.Constraint("Symmetric", 1, 3, 3, 3, -2),
    Sketcher.Constraint("Diameter", 0, Q("13 mm")),
    Sketcher.Constraint("Diameter", 1, Q("2.2 mm")),
    Sketcher.Constraint("Radius", 5, Q("1.65 mm")),
    Sketcher.Constraint("DistanceX", 4, 1, -1, 1, Q("1.15 mm")),
    Sketcher.Constraint("DistanceY", 4, 1, 2, 3, Q("1.645211 mm")),
    Sketcher.Constraint("DistanceX", 1, 3, -1, 1, Q("2.828427 mm")),
])
pad7 = body3.newObject("PartDesign::Pad", "Pad006")
pad7.Profile = sketch13
pad7.Length = 3
pad7.Reversed = True

doc.recompute()
